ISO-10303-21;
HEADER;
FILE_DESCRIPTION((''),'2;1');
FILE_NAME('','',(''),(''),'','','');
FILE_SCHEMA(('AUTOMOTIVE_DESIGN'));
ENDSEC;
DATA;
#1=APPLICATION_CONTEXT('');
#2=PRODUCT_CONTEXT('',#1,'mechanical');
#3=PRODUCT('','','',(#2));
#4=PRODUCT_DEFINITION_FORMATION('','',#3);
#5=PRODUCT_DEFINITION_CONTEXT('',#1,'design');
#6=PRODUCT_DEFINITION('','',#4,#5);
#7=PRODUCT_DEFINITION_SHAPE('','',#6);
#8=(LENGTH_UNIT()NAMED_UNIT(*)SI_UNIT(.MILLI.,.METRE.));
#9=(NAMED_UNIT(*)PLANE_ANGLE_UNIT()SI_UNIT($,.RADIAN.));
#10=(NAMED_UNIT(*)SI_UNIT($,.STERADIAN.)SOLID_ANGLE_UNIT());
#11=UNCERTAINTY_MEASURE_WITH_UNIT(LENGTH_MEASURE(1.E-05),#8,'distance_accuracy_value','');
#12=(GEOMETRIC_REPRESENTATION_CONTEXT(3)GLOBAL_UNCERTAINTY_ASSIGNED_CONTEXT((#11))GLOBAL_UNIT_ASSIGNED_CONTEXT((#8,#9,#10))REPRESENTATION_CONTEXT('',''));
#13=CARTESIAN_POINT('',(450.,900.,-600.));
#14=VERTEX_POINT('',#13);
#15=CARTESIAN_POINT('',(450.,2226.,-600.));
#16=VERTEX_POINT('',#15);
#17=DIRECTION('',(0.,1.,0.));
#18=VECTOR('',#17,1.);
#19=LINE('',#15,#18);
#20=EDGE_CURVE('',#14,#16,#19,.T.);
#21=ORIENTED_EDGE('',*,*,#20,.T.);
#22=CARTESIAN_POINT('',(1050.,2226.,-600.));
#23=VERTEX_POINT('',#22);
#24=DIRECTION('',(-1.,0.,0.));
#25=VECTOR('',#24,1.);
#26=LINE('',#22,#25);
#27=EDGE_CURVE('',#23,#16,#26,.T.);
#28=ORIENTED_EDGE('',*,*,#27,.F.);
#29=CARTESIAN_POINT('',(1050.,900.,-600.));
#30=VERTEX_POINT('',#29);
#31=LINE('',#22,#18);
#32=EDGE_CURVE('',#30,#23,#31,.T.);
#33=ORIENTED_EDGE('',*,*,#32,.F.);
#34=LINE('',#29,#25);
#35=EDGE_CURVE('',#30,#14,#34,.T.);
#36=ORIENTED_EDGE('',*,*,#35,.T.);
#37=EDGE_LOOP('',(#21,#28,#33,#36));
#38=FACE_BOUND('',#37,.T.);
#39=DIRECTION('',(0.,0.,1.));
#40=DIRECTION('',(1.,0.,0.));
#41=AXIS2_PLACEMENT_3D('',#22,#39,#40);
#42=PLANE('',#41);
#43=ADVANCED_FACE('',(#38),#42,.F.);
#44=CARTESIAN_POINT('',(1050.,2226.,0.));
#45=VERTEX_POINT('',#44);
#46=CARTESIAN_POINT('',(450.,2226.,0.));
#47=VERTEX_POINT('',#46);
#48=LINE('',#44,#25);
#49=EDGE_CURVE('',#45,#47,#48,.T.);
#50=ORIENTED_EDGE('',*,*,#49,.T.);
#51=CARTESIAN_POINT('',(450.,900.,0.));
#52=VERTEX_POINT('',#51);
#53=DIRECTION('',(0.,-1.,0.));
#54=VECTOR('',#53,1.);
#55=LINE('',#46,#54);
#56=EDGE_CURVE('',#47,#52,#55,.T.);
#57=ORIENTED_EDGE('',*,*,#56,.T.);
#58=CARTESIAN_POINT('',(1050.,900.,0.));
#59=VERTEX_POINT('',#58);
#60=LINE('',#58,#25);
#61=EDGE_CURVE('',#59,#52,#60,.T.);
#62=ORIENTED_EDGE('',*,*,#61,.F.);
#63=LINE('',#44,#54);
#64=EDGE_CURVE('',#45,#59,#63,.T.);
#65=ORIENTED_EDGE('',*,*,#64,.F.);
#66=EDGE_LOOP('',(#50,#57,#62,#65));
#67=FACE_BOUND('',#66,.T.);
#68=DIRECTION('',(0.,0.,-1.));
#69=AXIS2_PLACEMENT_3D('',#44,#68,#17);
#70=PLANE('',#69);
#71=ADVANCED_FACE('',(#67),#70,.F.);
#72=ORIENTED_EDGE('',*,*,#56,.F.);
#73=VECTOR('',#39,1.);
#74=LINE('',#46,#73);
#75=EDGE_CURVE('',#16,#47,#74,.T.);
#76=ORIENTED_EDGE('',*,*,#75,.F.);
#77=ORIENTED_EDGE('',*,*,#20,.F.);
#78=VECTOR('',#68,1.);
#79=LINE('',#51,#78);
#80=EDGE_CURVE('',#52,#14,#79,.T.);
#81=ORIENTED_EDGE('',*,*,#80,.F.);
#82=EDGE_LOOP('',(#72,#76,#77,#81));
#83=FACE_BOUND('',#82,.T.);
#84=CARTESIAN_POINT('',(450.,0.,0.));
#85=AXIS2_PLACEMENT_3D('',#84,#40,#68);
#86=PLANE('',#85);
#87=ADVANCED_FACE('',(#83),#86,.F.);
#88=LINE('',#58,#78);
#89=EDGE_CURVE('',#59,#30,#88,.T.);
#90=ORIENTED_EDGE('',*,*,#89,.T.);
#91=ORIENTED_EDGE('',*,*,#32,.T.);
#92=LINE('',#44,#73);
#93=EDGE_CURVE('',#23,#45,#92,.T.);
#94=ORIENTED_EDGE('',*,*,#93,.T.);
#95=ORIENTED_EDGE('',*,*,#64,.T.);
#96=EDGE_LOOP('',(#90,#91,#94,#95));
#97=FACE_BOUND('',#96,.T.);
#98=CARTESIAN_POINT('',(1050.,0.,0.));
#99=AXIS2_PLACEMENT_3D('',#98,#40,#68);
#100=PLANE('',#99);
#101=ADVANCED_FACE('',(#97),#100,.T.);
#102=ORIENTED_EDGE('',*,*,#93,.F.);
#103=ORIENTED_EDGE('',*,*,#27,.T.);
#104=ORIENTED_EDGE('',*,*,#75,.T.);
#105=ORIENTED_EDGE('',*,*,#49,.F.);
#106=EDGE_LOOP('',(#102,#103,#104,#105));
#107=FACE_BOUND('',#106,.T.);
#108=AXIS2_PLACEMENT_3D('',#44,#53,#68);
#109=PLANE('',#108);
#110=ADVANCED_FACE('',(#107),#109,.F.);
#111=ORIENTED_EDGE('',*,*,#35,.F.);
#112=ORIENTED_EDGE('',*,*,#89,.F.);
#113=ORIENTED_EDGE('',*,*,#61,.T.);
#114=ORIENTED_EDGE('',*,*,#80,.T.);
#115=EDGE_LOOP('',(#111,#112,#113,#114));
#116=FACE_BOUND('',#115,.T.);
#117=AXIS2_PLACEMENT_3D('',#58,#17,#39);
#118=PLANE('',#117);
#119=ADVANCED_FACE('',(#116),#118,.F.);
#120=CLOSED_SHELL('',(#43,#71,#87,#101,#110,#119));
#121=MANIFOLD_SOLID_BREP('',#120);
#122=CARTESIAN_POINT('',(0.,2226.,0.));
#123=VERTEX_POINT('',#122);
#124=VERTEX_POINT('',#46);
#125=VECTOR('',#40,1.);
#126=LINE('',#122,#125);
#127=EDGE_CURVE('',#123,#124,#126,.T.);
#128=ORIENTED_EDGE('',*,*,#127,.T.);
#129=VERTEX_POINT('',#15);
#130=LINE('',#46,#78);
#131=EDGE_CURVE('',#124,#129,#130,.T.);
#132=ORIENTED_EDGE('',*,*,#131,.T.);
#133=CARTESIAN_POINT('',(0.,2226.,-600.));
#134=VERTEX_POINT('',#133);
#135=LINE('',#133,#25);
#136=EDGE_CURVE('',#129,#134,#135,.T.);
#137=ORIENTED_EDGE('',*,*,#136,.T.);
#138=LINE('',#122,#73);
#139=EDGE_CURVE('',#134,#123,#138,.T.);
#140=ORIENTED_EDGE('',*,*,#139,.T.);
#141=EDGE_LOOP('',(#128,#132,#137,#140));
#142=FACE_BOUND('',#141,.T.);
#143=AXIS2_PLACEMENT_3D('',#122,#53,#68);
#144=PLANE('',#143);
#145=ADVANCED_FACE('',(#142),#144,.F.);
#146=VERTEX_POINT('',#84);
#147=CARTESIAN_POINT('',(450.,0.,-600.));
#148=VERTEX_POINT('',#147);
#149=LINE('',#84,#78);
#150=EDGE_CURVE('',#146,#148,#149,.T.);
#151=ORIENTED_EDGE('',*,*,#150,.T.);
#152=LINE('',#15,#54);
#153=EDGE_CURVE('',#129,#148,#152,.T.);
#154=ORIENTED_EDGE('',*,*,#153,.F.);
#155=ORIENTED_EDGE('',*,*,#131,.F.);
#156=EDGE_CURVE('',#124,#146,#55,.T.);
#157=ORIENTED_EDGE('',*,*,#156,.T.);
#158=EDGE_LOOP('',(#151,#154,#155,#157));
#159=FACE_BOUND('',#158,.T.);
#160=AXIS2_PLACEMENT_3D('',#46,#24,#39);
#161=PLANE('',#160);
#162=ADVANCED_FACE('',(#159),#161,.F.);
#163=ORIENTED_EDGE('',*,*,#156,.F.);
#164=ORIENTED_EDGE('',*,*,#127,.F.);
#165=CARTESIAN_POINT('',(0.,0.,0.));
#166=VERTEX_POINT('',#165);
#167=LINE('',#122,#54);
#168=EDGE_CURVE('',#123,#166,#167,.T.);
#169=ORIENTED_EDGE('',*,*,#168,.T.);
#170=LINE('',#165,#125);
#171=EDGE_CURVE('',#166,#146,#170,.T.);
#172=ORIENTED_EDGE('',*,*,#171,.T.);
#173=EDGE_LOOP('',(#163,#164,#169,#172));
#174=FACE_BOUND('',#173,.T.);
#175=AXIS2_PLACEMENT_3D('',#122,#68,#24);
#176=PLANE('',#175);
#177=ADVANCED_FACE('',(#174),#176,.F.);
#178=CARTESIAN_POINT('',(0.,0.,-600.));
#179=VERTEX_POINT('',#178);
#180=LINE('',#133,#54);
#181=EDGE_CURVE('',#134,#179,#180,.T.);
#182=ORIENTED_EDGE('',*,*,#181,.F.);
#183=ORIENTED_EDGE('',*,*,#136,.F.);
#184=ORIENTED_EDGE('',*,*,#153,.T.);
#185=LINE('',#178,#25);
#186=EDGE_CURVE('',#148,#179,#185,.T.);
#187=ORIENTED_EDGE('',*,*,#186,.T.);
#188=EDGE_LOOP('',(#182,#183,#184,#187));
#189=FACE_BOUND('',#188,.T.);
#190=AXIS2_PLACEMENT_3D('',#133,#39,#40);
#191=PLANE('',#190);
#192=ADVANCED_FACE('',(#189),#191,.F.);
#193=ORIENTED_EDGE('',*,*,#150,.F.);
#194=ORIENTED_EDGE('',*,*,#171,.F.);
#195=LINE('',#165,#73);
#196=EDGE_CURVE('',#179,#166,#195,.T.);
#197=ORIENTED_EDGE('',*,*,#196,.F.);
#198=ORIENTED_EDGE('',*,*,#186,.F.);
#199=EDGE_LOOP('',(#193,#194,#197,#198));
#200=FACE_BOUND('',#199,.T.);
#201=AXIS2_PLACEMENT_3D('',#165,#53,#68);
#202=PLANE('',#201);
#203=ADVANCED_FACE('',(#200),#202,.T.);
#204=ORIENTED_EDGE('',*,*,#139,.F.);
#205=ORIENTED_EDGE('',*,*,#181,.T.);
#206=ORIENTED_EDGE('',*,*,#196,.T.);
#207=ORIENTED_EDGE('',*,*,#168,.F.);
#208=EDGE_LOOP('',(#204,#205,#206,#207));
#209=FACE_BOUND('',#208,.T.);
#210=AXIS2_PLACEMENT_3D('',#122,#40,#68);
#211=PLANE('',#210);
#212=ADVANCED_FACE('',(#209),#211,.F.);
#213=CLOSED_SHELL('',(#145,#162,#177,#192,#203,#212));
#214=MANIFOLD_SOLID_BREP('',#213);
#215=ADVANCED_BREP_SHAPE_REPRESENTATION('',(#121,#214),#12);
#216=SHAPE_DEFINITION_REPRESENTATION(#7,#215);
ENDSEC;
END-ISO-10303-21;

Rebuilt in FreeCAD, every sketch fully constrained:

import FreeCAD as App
import Part
import Sketcher
from FreeCAD import Vector


def add_polygon(sketch, points):
    """Adds a closed chain of lines whose ends are joined by coincident constraints."""
    first, n = sketch.GeometryCount, len(points)
    for a, b in zip(points, points[1:] + points[:1]):
        sketch.addGeometry(Part.LineSegment(App.Vector(*a, 0), App.Vector(*b, 0)), False)
    for i in range(n):
        sketch.addConstraint(Sketcher.Constraint("Coincident", first + i, 2, first + (i + 1) % n, 1))

doc = App.newDocument("Part")
body = doc.addObject("PartDesign::Body", "Body")

# Sketch on XZ plane
sketch1 = body.newObject("Sketcher::SketchObject", "Sketch")
sketch1.AttachmentSupport = (doc.getObject("XZ_Plane"), [""])
sketch1.MapMode = "FlatFace"
add_polygon(sketch1, [(0, -600), (0, 0), (450, 0), (450, -600)])  # lines 0-3
sketch1.addConstraint([
    Sketcher.Constraint("Vertical", 0),
    Sketcher.Constraint("Horizontal", 1),
    Sketcher.Constraint("Vertical", 2),
    Sketcher.Constraint("Horizontal", 3),
    Sketcher.Constraint("Coincident", 0, 2, -1, 1),
    Sketcher.Constraint("DistanceX", 1, 1, 1, 2, 450.0),
    Sketcher.Constraint("DistanceY", 0, 1, 0, 2, 600.0),
])
pad1 = body.newObject("PartDesign::Pad", "Pad")
pad1.Profile = sketch1
pad1.Length = 2226
pad1.Reversed = True
body2 = doc.addObject("PartDesign::Body", "Body001")

# Sketch on YZ plane
sketch2 = body2.newObject("Sketcher::SketchObject", "Sketch001")
sketch2.AttachmentSupport = (doc.getObject("YZ_Plane001"), [""])
sketch2.MapMode = "FlatFace"
sketch2.AttachmentOffset = App.Placement(Vector(0, 0, 450), App.Rotation())
add_polygon(sketch2, [(2226, 0), (900, 0), (900, -600), (2226, -600)])  # lines 0-3
sketch2.addConstraint([
    Sketcher.Constraint("Horizontal", 0),
    Sketcher.Constraint("Vertical", 1),
    Sketcher.Constraint("Horizontal", 2),
    Sketcher.Constraint("Vertical", 3),
    Sketcher.Constraint("PointOnObject", 0, 2, -1),
    Sketcher.Constraint("DistanceX", 0, 2, 0, 1, 1326.0),
    Sketcher.Constraint("DistanceY", 1, 2, 1, 1, 600.0),
    Sketcher.Constraint("DistanceX", -1, 1, 0, 2, 900.0),
])
pad2 = body2.newObject("PartDesign::Pad", "Pad001")
pad2.Profile = sketch2
pad2.Length = 600

doc.recompute()
